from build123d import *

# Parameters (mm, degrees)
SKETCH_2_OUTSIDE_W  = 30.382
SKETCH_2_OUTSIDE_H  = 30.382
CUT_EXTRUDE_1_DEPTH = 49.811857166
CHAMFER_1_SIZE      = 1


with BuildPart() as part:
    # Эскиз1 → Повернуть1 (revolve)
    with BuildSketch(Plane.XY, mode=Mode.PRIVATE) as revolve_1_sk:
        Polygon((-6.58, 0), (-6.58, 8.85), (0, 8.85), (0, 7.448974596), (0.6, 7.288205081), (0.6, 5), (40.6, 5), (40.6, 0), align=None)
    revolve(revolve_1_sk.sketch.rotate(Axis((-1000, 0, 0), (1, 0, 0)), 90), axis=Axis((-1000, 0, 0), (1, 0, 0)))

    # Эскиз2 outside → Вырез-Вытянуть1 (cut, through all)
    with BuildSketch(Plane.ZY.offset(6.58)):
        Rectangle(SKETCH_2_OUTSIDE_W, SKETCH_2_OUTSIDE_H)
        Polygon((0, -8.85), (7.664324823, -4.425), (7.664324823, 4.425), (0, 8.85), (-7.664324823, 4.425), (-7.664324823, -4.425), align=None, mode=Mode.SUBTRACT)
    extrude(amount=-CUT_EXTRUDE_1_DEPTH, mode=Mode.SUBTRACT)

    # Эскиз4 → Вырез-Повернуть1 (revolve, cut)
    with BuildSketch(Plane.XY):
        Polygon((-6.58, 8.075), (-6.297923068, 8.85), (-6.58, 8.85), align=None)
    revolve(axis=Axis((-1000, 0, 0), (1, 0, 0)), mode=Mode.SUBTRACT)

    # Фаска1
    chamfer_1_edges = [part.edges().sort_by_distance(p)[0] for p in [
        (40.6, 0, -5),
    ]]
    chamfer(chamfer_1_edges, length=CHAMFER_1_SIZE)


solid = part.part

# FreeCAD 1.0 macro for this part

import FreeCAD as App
import Part
import Sketcher
from FreeCAD import Vector
Q = App.Units.Quantity


def edges_at(feature, points):
    """Names of the edges that pass closest to the given points."""
    edges = feature.Shape.Edges
    near = lambda p: min(range(len(edges)), key=lambda i: edges[i].distToShape(Part.Vertex(*p))[0])
    return sorted({f"Edge{near(p) + 1}" for p in points})


def add_polygon(sketch, points):
    """Adds a closed chain of lines whose ends are joined by coincident constraints."""
    first, n = sketch.GeometryCount, len(points)
    for a, b in zip(points, points[1:] + points[:1]):
        sketch.addGeometry(Part.LineSegment(App.Vector(*a, 0), App.Vector(*b, 0)), False)
    for i in range(n):
        sketch.addConstraint(Sketcher.Constraint("Coincident", first + i, 2, first + (i + 1) % n, 1))

doc = App.newDocument("Part")
body = doc.addObject("PartDesign::Body", "Body")

# Sketch on XY plane
sketch1 = doc.addObject("Sketcher::SketchObject", "Sketch")
body.addObject(sketch1)
sketch1.AttachmentSupport = (doc.XY_Plane, [""])
sketch1.MapMode = "FlatFace"
add_polygon(sketch1, [(-6.6, 8.8), (-6.6, 0), (40.6, 0), (40.6, 5), (0.6, 5), (0.6, 7.3), (0, 7.4), (0, 8.8)])  # lines 0-7
sketch1.addConstraint([
    Sketcher.Constraint("Vertical", 0),
    Sketcher.Constraint("Horizontal", 1),
    Sketcher.Constraint("Vertical", 2),
    Sketcher.Constraint("Horizontal", 3),
    Sketcher.Constraint("Vertical", 4),
    Sketcher.Constraint("Vertical", 6),
    Sketcher.Constraint("Horizontal", 7),
    Sketcher.Constraint("PointOnObject", 0, 2, -1),
    Sketcher.Constraint("PointOnObject", 5, 2, -2),
    Sketcher.Constraint("DistanceX", 3, 2, 3, 1, Q("40 mm")),
    Sketcher.Constraint("DistanceY", 2, 1, 2, 2, Q("5 mm")),
    Sketcher.Constraint("Angle", 5, Q("165 deg")),
    Sketcher.Constraint("DistanceX", 1, 1, 1, 2, Q("47.18 mm")),
    Sketcher.Constraint("DistanceX", 7, 2, 7, 1, Q("6.58 mm")),
    Sketcher.Constraint("DistanceY", 0, 2, 0, 1, Q("8.85 mm")),
    Sketcher.Constraint("DistanceY", 4, 1, 4, 2, Q("2.288205 mm")),
])
revolution = doc.addObject("PartDesign::Revolution", "Revolution")
body.addObject(revolution)
revolution.Profile = sketch1
revolution.ReferenceAxis = (sketch1, ["H_Axis"])
revolution.Angle = 360

# Sketch on YZ plane
sketch2 = doc.addObject("Sketcher::SketchObject", "Sketch001")
body.addObject(sketch2)
sketch2.AttachmentSupport = (doc.YZ_Plane, [""])
sketch2.MapMode = "FlatFace"
sketch2.AttachmentOffset = App.Placement(Vector(0, 0, -6.58), App.Rotation())
add_polygon(sketch2, [(15, -15), (-15, -15), (-15, 15), (15, 15)])  # lines 0-3
add_polygon(sketch2, [(-4, 8), (-9, 0), (-4, -8), (4, -8), (9, 0), (4, 8)])  # lines 4-9
sketch2.addConstraint([
    Sketcher.Constraint("Horizontal", 0),
    Sketcher.Constraint("Vertical", 1),
    Sketcher.Constraint("Horizontal", 2),
    Sketcher.Constraint("Vertical", 3),
    Sketcher.Constraint("Horizontal", 6),
    Sketcher.Constraint("Horizontal", 9),
    Sketcher.Constraint("Symmetric", 0, 2, 2, 2, -1, 1),
    Sketcher.Constraint("Symmetric", 4, 2, 7, 2, -1, 1),
    Sketcher.Constraint("Symmetric", 5, 2, 8, 2, -1, 1),
    Sketcher.Constraint("PointOnObject", 4, 2, -1),
    Sketcher.Constraint("Parallel", 4, 7),
    Sketcher.Constraint("Vertical", 6, 2, 8, 2),
    Sketcher.Constraint("Equal", 2, 1),
    Sketcher.Constraint("Angle", 4, Q("-120 deg")),
    Sketcher.Constraint("DistanceX", 6, 1, 6, 2, Q("8.85 mm")),
    Sketcher.Constraint("DistanceX", 4, 2, 7, 2, Q("17.7 mm")),
    Sketcher.Constraint("DistanceX", 0, 2, 0, 1, Q("30.382 mm")),
])
pocket1 = doc.addObject("PartDesign::Pocket", "Pocket")
body.addObject(pocket1)
pocket1.Profile = sketch2
pocket1.Type = "ThroughAll"
pocket1.Reversed = True

# Sketch on XY plane
sketch3 = doc.addObject("Sketcher::SketchObject", "Sketch002")
body.addObject(sketch3)
sketch3.AttachmentSupport = (doc.XY_Plane, [""])
sketch3.MapMode = "FlatFace"
add_polygon(sketch3, [(-6.58, 8.07), (-6.3, 8.85), (-6.58, 8.85)])  # lines 0-2
sketch3.addConstraint([
    Sketcher.Constraint("Horizontal", 1),
    Sketcher.Constraint("Vertical", 2),
    Sketcher.Constraint("Angle", 0, Q("70 deg")),
    Sketcher.Constraint("DistanceY", 2, 2, 2, 1, Q("0.775 mm")),
    Sketcher.Constraint("DistanceY", -1, 1, 0, 2, Q("8.85 mm")),
    Sketcher.Constraint("DistanceX", 1, 2, -1, 1, Q("6.58 mm")),
])
groove = doc.addObject("PartDesign::Groove", "Groove")
body.addObject(groove)
groove.Profile = sketch3
groove.ReferenceAxis = (sketch3, ["H_Axis"])
groove.Angle = 360
doc.recompute()

chamfer = doc.addObject("PartDesign::Chamfer", "Chamfer")
body.addObject(chamfer)
chamfer.Base = (groove, edges_at(groove, [(40.6, 0, -5)]))
chamfer.Size = 1

doc.recompute()
